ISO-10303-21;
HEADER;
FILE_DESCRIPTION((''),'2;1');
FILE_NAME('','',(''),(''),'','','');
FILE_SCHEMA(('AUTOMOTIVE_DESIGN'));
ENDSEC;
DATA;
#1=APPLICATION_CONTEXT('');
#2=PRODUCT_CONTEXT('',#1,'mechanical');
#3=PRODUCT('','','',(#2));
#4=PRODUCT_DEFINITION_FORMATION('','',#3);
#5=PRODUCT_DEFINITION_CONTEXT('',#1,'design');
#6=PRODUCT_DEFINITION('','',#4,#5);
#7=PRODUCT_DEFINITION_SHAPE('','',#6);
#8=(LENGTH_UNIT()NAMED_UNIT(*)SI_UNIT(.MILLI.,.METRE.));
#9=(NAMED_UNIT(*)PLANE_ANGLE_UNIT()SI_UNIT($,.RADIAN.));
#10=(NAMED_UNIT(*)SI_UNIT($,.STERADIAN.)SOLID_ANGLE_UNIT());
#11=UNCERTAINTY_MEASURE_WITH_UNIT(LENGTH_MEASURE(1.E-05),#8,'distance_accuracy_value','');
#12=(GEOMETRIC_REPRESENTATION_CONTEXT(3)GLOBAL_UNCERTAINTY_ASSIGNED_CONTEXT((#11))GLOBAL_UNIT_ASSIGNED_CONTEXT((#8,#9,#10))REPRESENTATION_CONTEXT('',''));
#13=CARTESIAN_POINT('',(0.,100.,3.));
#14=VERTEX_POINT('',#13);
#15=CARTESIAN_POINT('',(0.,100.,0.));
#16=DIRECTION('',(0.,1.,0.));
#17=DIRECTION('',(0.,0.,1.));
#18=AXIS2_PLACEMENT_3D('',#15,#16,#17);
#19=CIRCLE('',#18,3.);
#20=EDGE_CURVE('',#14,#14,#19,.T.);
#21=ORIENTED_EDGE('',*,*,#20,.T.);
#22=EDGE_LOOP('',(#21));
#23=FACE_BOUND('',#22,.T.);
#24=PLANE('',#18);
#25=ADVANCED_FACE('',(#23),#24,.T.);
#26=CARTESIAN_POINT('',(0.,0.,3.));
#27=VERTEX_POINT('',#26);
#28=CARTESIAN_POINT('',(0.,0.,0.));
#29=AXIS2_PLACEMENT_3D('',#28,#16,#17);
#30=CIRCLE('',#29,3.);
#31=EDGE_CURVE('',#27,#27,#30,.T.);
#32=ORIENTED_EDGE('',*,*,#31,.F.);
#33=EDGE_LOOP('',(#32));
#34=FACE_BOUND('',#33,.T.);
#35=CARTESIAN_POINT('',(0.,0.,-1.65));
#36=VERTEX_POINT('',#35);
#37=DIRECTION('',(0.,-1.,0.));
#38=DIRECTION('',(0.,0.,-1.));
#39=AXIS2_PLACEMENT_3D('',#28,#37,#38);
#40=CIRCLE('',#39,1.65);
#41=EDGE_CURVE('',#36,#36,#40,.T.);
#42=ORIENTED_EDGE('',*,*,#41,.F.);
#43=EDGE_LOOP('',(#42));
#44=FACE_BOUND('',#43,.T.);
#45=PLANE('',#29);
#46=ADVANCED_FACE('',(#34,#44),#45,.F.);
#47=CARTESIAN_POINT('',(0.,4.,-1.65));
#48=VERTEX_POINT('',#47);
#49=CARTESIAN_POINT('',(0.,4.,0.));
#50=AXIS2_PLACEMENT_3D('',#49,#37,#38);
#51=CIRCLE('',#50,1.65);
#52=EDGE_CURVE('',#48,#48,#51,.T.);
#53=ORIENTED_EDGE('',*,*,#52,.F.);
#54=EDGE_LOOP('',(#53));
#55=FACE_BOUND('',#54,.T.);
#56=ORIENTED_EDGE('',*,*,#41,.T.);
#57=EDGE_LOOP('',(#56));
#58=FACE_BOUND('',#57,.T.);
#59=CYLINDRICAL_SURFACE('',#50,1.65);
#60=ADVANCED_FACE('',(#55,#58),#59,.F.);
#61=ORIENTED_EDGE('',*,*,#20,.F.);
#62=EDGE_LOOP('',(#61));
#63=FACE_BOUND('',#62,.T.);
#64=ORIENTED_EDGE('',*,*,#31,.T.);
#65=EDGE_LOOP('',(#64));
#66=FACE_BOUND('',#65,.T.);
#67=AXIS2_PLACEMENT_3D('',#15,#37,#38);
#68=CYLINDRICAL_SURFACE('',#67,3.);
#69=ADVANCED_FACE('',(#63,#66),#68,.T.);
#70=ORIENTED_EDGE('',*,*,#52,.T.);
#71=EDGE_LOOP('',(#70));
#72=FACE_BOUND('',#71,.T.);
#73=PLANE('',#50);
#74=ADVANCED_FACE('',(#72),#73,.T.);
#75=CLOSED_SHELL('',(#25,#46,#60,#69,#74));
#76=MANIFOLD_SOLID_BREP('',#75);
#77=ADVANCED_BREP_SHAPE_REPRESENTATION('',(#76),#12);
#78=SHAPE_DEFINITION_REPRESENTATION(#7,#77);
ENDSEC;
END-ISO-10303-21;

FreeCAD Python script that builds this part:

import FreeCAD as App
import Part
import Sketcher

V = App.Vector

doc = App.newDocument("Part")
body = doc.addObject("PartDesign::Body", "Body")

# Sketch on XZ plane
sketch1 = body.newObject("Sketcher::SketchObject", "Sketch")
sketch1.AttachmentSupport = (doc.getObject("XZ_Plane"), [""])
sketch1.MapMode = "FlatFace"
sketch1.addGeometry(Part.Circle(V(0, 0, 0), V(0, 0, 1), 3), False)
sketch1.addConstraint([
    Sketcher.Constraint("Coincident", 0, 3, -1, 1),
    Sketcher.Constraint("Diameter", 0, 6.0),
])
pad1 = body.newObject("PartDesign::Pad", "Pad")
pad1.Profile = sketch1
pad1.Length = 100
pad1.Reversed = True

# Sketch on XZ plane
sketch2 = body.newObject("Sketcher::SketchObject", "Sketch001")
sketch2.AttachmentSupport = (doc.getObject("XZ_Plane"), [""])
sketch2.MapMode = "FlatFace"
sketch2.addGeometry(Part.Circle(V(0, 0, 0), V(0, 0, 1), 1.6), False)
sketch2.addConstraint([
    Sketcher.Constraint("Coincident", 0, 3, -1, 1),
    Sketcher.Constraint("Diameter", 0, 3.3),
])
pocket1 = body.newObject("PartDesign::Pocket", "Pocket")
pocket1.Profile = sketch2
pocket1.Length = 4

doc.recompute()
